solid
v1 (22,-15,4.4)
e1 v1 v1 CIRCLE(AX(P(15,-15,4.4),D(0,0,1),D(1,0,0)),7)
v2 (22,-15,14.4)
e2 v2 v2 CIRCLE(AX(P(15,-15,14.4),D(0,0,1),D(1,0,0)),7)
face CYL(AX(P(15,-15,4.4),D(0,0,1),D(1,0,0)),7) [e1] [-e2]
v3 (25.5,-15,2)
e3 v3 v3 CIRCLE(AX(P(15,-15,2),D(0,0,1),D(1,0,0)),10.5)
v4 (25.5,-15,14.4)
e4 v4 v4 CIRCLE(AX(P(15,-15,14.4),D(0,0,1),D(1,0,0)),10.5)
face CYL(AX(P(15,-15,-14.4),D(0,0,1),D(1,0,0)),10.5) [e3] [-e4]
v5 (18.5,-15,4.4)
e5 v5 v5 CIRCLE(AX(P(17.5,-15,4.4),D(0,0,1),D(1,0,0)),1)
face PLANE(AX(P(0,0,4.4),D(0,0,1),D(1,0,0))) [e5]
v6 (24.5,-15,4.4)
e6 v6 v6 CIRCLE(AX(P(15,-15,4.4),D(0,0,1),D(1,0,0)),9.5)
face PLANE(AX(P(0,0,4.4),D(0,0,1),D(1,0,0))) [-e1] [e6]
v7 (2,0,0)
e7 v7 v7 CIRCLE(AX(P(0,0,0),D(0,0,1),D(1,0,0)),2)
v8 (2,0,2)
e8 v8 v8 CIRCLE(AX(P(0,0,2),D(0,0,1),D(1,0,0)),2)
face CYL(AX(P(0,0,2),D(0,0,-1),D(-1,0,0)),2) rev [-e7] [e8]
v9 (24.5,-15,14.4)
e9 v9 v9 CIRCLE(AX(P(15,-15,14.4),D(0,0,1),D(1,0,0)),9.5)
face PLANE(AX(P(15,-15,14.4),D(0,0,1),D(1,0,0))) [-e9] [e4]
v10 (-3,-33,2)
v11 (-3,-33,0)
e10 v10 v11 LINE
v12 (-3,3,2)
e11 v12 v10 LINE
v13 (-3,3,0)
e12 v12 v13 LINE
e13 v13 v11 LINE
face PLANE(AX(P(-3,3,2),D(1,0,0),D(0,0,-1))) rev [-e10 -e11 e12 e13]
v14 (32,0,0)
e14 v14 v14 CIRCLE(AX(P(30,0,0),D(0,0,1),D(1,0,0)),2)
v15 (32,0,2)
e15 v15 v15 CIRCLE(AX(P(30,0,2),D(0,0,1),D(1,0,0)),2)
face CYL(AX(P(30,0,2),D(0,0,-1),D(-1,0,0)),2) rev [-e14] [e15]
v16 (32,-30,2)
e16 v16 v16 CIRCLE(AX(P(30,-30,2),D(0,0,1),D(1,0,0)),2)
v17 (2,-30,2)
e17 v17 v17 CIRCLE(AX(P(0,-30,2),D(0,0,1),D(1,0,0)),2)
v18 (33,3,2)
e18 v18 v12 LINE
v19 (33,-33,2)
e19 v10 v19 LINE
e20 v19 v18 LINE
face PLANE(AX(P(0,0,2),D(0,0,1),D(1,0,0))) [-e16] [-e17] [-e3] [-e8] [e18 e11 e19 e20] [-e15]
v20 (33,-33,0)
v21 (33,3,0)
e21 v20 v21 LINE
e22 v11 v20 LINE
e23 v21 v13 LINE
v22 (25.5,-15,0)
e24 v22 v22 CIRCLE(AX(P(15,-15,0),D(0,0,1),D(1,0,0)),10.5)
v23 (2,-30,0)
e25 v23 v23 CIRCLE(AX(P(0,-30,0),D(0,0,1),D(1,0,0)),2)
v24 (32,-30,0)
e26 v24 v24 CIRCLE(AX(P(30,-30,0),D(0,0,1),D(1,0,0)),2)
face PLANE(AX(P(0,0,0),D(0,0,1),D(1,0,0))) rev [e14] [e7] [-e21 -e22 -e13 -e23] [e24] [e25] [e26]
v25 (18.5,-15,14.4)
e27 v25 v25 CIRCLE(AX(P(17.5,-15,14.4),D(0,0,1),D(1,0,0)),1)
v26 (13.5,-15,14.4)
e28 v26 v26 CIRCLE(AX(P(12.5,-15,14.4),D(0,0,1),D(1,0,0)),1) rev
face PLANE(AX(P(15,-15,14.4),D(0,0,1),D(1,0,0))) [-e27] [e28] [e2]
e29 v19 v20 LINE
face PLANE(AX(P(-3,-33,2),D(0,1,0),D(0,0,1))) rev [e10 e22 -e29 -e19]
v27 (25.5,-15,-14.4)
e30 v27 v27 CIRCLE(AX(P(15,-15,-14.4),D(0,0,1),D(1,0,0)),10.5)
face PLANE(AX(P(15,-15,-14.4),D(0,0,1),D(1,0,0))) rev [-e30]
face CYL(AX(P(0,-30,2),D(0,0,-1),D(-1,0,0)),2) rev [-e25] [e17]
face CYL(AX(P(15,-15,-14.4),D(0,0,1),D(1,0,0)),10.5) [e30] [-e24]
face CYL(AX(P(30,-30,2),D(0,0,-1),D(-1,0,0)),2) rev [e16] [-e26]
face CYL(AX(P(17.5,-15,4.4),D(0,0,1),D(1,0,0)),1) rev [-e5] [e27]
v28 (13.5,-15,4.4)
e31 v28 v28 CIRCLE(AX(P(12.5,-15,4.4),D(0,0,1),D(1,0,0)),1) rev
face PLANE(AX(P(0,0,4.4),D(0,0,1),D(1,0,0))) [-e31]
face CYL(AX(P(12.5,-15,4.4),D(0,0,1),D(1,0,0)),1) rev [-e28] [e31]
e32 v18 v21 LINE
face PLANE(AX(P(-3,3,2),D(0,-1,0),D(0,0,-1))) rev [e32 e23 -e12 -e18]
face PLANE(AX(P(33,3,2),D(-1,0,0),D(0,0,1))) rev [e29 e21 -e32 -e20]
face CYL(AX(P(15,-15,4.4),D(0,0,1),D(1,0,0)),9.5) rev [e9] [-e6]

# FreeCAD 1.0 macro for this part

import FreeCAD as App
import Part
import Sketcher
Q = App.Units.Quantity

doc = App.newDocument("Part")
params = doc.addObject("Spreadsheet::Sheet", "Params")
for row, (alias, value) in enumerate([
    ("sketch1_diameter", "4 mm"),
    ("sketch1_width", "36 mm"),
    ("pad1_length", "2 mm"),
    ("sketch2_diameter", "21 mm"),
    ("pad2_length", "12.4 mm"),
    ("pad2_length2", "16.4 mm"),
    ("sketch3_diameter", "19 mm"),
    ("sketch3_diameter2", "14 mm"),
    ("sketch3_diameter3", "2 mm"),
    ("pocket1_length", "10 mm"),
], start=1):
    params.set(f"A{row}", alias)
    params.set(f"B{row}", "=" + value)
    params.setAlias(f"B{row}", alias)

body = doc.addObject("PartDesign::Body", "Body")

# Sketch on XY plane
sketch1 = body.newObject("Sketcher::SketchObject", "Sketch")
sketch1.AttachmentSupport = (doc.getObject("XY_Plane"), [""])
sketch1.MapMode = "FlatFace"
sketch1.addGeometry([
    Part.LineSegment(App.Vector(-3, 3, 0), App.Vector(-3, -33, 0)),  # 0
    Part.LineSegment(App.Vector(-3, -33, 0), App.Vector(33, -33, 0)),  # 1
    Part.LineSegment(App.Vector(33, -33, 0), App.Vector(33, 3, 0)),  # 2
    Part.LineSegment(App.Vector(33, 3, 0), App.Vector(-3, 3, 0)),  # 3
    Part.Circle(App.Vector(0, -30, 0), App.Vector(0, 0, 1), 2),  # 4
    Part.Circle(App.Vector(30, -30, 0), App.Vector(0, 0, 1), 2),  # 5
    Part.Circle(App.Vector(0, 0, 0), App.Vector(0, 0, 1), 2),  # 6
    Part.Circle(App.Vector(30, 0, 0), App.Vector(0, 0, 1), 2),  # 7
], False)
sketch1.addConstraint([
    Sketcher.Constraint("Coincident", 0, 2, 1, 1),
    Sketcher.Constraint("Coincident", 1, 2, 2, 1),
    Sketcher.Constraint("Coincident", 2, 2, 3, 1),
    Sketcher.Constraint("Coincident", 3, 2, 0, 1),
    Sketcher.Constraint("Vertical", 0),
    Sketcher.Constraint("Horizontal", 1),
    Sketcher.Constraint("Vertical", 2),
    Sketcher.Constraint("Horizontal", 3),
    Sketcher.Constraint("Coincident", 6, 3, -1, 1),
    Sketcher.Constraint("Equal", 4, 5),
    Sketcher.Constraint("Equal", 5, 6),
    Sketcher.Constraint("Equal", 6, 7),
    Sketcher.Constraint("PointOnObject", 4, 3, -2),
    Sketcher.Constraint("PointOnObject", 7, 3, -1),
    Sketcher.Constraint("Horizontal", 4, 3, 5, 3),
    Sketcher.Constraint("Vertical", 5, 3, 7, 3),
    Sketcher.Constraint("Equal", 3, 0),
    Sketcher.Constraint("Diameter", 4, Q("4 mm")),
    Sketcher.Constraint("DistanceX", 1, 1, 1, 2, Q("36 mm")),
    Sketcher.Constraint("DistanceY", 4, 3, -1, 1, Q("30 mm")),
    Sketcher.Constraint("DistanceX", -1, 1, 5, 3, Q("30 mm")),
    Sketcher.Constraint("DistanceX", 0, 2, -1, 1, Q("3 mm")),
    Sketcher.Constraint("DistanceY", 0, 2, -1, 1, Q("33 mm")),
])
sketch1.setExpression("Constraints[17]", "Params.sketch1_diameter")
sketch1.setExpression("Constraints[18]", "Params.sketch1_width")
pad1 = body.newObject("PartDesign::Pad", "Pad")
pad1.Profile = sketch1
pad1.setExpression("Length", "Params.pad1_length")

# Sketch on XY plane
sketch2 = body.newObject("Sketcher::SketchObject", "Sketch001")
sketch2.AttachmentSupport = (doc.getObject("XY_Plane"), [""])
sketch2.MapMode = "FlatFace"
sketch2.AttachmentOffset = App.Placement(App.Vector(0, 0, 2), App.Rotation())
sketch2.addGeometry(Part.Circle(App.Vector(15, -15, 0), App.Vector(0, 0, 1), 10.5), False)
sketch2.addConstraint([
    Sketcher.Constraint("Diameter", 0, Q("21 mm")),
    Sketcher.Constraint("DistanceX", -1, 1, 0, 3, Q("15 mm")),
    Sketcher.Constraint("DistanceY", 0, 3, -1, 1, Q("15 mm")),
])
sketch2.setExpression("Constraints[0]", "Params.sketch2_diameter")
pad2 = body.newObject("PartDesign::Pad", "Pad001")
pad2.Profile = sketch2
pad2.Type = "TwoLengths"
pad2.setExpression("Length", "Params.pad2_length")
pad2.setExpression("Length2", "Params.pad2_length2")

# Sketch on XY plane
sketch3 = body.newObject("Sketcher::SketchObject", "Sketch002")
sketch3.AttachmentSupport = (doc.getObject("XY_Plane"), [""])
sketch3.MapMode = "FlatFace"
sketch3.AttachmentOffset = App.Placement(App.Vector(0, 0, 14.4), App.Rotation())
sketch3.addGeometry([
    Part.Circle(App.Vector(15, -15, 0), App.Vector(0, 0, 1), 9.5),
    Part.Circle(App.Vector(15, -15, 0), App.Vector(0, 0, 1), 7),
    Part.Circle(App.Vector(17.5, -15, 0), App.Vector(0, 0, 1), 1),
    Part.Circle(App.Vector(12.5, -15, 0), App.Vector(0, 0, 1), 1),
], False)
sketch3.addConstraint([
    Sketcher.Constraint("Coincident", 1, 3, 0, 3),
    Sketcher.Constraint("Equal", 2, 3),
    Sketcher.Constraint("Horizontal", 1, 3, 2, 3),
    Sketcher.Constraint("Horizontal", 2, 3, 3, 3),
    Sketcher.Constraint("Diameter", 0, Q("19 mm")),
    Sketcher.Constraint("Diameter", 1, Q("14 mm")),
    Sketcher.Constraint("Diameter", 2, Q("2 mm")),
    Sketcher.Constraint("DistanceX", -1, 1, 0, 3, Q("15 mm")),
    Sketcher.Constraint("DistanceY", 0, 3, -1, 1, Q("15 mm")),
    Sketcher.Constraint("DistanceX", 3, 3, 2, 3, Q("5 mm")),
    Sketcher.Constraint("DistanceX", -1, 1, 2, 3, Q("17.5 mm")),
])
sketch3.setExpression("Constraints[4]", "Params.sketch3_diameter")
sketch3.setExpression("Constraints[5]", "Params.sketch3_diameter2")
sketch3.setExpression("Constraints[6]", "Params.sketch3_diameter3")
pocket1 = body.newObject("PartDesign::Pocket", "Pocket")
pocket1.Profile = sketch3
pocket1.setExpression("Length", "Params.pocket1_length")

doc.recompute()
